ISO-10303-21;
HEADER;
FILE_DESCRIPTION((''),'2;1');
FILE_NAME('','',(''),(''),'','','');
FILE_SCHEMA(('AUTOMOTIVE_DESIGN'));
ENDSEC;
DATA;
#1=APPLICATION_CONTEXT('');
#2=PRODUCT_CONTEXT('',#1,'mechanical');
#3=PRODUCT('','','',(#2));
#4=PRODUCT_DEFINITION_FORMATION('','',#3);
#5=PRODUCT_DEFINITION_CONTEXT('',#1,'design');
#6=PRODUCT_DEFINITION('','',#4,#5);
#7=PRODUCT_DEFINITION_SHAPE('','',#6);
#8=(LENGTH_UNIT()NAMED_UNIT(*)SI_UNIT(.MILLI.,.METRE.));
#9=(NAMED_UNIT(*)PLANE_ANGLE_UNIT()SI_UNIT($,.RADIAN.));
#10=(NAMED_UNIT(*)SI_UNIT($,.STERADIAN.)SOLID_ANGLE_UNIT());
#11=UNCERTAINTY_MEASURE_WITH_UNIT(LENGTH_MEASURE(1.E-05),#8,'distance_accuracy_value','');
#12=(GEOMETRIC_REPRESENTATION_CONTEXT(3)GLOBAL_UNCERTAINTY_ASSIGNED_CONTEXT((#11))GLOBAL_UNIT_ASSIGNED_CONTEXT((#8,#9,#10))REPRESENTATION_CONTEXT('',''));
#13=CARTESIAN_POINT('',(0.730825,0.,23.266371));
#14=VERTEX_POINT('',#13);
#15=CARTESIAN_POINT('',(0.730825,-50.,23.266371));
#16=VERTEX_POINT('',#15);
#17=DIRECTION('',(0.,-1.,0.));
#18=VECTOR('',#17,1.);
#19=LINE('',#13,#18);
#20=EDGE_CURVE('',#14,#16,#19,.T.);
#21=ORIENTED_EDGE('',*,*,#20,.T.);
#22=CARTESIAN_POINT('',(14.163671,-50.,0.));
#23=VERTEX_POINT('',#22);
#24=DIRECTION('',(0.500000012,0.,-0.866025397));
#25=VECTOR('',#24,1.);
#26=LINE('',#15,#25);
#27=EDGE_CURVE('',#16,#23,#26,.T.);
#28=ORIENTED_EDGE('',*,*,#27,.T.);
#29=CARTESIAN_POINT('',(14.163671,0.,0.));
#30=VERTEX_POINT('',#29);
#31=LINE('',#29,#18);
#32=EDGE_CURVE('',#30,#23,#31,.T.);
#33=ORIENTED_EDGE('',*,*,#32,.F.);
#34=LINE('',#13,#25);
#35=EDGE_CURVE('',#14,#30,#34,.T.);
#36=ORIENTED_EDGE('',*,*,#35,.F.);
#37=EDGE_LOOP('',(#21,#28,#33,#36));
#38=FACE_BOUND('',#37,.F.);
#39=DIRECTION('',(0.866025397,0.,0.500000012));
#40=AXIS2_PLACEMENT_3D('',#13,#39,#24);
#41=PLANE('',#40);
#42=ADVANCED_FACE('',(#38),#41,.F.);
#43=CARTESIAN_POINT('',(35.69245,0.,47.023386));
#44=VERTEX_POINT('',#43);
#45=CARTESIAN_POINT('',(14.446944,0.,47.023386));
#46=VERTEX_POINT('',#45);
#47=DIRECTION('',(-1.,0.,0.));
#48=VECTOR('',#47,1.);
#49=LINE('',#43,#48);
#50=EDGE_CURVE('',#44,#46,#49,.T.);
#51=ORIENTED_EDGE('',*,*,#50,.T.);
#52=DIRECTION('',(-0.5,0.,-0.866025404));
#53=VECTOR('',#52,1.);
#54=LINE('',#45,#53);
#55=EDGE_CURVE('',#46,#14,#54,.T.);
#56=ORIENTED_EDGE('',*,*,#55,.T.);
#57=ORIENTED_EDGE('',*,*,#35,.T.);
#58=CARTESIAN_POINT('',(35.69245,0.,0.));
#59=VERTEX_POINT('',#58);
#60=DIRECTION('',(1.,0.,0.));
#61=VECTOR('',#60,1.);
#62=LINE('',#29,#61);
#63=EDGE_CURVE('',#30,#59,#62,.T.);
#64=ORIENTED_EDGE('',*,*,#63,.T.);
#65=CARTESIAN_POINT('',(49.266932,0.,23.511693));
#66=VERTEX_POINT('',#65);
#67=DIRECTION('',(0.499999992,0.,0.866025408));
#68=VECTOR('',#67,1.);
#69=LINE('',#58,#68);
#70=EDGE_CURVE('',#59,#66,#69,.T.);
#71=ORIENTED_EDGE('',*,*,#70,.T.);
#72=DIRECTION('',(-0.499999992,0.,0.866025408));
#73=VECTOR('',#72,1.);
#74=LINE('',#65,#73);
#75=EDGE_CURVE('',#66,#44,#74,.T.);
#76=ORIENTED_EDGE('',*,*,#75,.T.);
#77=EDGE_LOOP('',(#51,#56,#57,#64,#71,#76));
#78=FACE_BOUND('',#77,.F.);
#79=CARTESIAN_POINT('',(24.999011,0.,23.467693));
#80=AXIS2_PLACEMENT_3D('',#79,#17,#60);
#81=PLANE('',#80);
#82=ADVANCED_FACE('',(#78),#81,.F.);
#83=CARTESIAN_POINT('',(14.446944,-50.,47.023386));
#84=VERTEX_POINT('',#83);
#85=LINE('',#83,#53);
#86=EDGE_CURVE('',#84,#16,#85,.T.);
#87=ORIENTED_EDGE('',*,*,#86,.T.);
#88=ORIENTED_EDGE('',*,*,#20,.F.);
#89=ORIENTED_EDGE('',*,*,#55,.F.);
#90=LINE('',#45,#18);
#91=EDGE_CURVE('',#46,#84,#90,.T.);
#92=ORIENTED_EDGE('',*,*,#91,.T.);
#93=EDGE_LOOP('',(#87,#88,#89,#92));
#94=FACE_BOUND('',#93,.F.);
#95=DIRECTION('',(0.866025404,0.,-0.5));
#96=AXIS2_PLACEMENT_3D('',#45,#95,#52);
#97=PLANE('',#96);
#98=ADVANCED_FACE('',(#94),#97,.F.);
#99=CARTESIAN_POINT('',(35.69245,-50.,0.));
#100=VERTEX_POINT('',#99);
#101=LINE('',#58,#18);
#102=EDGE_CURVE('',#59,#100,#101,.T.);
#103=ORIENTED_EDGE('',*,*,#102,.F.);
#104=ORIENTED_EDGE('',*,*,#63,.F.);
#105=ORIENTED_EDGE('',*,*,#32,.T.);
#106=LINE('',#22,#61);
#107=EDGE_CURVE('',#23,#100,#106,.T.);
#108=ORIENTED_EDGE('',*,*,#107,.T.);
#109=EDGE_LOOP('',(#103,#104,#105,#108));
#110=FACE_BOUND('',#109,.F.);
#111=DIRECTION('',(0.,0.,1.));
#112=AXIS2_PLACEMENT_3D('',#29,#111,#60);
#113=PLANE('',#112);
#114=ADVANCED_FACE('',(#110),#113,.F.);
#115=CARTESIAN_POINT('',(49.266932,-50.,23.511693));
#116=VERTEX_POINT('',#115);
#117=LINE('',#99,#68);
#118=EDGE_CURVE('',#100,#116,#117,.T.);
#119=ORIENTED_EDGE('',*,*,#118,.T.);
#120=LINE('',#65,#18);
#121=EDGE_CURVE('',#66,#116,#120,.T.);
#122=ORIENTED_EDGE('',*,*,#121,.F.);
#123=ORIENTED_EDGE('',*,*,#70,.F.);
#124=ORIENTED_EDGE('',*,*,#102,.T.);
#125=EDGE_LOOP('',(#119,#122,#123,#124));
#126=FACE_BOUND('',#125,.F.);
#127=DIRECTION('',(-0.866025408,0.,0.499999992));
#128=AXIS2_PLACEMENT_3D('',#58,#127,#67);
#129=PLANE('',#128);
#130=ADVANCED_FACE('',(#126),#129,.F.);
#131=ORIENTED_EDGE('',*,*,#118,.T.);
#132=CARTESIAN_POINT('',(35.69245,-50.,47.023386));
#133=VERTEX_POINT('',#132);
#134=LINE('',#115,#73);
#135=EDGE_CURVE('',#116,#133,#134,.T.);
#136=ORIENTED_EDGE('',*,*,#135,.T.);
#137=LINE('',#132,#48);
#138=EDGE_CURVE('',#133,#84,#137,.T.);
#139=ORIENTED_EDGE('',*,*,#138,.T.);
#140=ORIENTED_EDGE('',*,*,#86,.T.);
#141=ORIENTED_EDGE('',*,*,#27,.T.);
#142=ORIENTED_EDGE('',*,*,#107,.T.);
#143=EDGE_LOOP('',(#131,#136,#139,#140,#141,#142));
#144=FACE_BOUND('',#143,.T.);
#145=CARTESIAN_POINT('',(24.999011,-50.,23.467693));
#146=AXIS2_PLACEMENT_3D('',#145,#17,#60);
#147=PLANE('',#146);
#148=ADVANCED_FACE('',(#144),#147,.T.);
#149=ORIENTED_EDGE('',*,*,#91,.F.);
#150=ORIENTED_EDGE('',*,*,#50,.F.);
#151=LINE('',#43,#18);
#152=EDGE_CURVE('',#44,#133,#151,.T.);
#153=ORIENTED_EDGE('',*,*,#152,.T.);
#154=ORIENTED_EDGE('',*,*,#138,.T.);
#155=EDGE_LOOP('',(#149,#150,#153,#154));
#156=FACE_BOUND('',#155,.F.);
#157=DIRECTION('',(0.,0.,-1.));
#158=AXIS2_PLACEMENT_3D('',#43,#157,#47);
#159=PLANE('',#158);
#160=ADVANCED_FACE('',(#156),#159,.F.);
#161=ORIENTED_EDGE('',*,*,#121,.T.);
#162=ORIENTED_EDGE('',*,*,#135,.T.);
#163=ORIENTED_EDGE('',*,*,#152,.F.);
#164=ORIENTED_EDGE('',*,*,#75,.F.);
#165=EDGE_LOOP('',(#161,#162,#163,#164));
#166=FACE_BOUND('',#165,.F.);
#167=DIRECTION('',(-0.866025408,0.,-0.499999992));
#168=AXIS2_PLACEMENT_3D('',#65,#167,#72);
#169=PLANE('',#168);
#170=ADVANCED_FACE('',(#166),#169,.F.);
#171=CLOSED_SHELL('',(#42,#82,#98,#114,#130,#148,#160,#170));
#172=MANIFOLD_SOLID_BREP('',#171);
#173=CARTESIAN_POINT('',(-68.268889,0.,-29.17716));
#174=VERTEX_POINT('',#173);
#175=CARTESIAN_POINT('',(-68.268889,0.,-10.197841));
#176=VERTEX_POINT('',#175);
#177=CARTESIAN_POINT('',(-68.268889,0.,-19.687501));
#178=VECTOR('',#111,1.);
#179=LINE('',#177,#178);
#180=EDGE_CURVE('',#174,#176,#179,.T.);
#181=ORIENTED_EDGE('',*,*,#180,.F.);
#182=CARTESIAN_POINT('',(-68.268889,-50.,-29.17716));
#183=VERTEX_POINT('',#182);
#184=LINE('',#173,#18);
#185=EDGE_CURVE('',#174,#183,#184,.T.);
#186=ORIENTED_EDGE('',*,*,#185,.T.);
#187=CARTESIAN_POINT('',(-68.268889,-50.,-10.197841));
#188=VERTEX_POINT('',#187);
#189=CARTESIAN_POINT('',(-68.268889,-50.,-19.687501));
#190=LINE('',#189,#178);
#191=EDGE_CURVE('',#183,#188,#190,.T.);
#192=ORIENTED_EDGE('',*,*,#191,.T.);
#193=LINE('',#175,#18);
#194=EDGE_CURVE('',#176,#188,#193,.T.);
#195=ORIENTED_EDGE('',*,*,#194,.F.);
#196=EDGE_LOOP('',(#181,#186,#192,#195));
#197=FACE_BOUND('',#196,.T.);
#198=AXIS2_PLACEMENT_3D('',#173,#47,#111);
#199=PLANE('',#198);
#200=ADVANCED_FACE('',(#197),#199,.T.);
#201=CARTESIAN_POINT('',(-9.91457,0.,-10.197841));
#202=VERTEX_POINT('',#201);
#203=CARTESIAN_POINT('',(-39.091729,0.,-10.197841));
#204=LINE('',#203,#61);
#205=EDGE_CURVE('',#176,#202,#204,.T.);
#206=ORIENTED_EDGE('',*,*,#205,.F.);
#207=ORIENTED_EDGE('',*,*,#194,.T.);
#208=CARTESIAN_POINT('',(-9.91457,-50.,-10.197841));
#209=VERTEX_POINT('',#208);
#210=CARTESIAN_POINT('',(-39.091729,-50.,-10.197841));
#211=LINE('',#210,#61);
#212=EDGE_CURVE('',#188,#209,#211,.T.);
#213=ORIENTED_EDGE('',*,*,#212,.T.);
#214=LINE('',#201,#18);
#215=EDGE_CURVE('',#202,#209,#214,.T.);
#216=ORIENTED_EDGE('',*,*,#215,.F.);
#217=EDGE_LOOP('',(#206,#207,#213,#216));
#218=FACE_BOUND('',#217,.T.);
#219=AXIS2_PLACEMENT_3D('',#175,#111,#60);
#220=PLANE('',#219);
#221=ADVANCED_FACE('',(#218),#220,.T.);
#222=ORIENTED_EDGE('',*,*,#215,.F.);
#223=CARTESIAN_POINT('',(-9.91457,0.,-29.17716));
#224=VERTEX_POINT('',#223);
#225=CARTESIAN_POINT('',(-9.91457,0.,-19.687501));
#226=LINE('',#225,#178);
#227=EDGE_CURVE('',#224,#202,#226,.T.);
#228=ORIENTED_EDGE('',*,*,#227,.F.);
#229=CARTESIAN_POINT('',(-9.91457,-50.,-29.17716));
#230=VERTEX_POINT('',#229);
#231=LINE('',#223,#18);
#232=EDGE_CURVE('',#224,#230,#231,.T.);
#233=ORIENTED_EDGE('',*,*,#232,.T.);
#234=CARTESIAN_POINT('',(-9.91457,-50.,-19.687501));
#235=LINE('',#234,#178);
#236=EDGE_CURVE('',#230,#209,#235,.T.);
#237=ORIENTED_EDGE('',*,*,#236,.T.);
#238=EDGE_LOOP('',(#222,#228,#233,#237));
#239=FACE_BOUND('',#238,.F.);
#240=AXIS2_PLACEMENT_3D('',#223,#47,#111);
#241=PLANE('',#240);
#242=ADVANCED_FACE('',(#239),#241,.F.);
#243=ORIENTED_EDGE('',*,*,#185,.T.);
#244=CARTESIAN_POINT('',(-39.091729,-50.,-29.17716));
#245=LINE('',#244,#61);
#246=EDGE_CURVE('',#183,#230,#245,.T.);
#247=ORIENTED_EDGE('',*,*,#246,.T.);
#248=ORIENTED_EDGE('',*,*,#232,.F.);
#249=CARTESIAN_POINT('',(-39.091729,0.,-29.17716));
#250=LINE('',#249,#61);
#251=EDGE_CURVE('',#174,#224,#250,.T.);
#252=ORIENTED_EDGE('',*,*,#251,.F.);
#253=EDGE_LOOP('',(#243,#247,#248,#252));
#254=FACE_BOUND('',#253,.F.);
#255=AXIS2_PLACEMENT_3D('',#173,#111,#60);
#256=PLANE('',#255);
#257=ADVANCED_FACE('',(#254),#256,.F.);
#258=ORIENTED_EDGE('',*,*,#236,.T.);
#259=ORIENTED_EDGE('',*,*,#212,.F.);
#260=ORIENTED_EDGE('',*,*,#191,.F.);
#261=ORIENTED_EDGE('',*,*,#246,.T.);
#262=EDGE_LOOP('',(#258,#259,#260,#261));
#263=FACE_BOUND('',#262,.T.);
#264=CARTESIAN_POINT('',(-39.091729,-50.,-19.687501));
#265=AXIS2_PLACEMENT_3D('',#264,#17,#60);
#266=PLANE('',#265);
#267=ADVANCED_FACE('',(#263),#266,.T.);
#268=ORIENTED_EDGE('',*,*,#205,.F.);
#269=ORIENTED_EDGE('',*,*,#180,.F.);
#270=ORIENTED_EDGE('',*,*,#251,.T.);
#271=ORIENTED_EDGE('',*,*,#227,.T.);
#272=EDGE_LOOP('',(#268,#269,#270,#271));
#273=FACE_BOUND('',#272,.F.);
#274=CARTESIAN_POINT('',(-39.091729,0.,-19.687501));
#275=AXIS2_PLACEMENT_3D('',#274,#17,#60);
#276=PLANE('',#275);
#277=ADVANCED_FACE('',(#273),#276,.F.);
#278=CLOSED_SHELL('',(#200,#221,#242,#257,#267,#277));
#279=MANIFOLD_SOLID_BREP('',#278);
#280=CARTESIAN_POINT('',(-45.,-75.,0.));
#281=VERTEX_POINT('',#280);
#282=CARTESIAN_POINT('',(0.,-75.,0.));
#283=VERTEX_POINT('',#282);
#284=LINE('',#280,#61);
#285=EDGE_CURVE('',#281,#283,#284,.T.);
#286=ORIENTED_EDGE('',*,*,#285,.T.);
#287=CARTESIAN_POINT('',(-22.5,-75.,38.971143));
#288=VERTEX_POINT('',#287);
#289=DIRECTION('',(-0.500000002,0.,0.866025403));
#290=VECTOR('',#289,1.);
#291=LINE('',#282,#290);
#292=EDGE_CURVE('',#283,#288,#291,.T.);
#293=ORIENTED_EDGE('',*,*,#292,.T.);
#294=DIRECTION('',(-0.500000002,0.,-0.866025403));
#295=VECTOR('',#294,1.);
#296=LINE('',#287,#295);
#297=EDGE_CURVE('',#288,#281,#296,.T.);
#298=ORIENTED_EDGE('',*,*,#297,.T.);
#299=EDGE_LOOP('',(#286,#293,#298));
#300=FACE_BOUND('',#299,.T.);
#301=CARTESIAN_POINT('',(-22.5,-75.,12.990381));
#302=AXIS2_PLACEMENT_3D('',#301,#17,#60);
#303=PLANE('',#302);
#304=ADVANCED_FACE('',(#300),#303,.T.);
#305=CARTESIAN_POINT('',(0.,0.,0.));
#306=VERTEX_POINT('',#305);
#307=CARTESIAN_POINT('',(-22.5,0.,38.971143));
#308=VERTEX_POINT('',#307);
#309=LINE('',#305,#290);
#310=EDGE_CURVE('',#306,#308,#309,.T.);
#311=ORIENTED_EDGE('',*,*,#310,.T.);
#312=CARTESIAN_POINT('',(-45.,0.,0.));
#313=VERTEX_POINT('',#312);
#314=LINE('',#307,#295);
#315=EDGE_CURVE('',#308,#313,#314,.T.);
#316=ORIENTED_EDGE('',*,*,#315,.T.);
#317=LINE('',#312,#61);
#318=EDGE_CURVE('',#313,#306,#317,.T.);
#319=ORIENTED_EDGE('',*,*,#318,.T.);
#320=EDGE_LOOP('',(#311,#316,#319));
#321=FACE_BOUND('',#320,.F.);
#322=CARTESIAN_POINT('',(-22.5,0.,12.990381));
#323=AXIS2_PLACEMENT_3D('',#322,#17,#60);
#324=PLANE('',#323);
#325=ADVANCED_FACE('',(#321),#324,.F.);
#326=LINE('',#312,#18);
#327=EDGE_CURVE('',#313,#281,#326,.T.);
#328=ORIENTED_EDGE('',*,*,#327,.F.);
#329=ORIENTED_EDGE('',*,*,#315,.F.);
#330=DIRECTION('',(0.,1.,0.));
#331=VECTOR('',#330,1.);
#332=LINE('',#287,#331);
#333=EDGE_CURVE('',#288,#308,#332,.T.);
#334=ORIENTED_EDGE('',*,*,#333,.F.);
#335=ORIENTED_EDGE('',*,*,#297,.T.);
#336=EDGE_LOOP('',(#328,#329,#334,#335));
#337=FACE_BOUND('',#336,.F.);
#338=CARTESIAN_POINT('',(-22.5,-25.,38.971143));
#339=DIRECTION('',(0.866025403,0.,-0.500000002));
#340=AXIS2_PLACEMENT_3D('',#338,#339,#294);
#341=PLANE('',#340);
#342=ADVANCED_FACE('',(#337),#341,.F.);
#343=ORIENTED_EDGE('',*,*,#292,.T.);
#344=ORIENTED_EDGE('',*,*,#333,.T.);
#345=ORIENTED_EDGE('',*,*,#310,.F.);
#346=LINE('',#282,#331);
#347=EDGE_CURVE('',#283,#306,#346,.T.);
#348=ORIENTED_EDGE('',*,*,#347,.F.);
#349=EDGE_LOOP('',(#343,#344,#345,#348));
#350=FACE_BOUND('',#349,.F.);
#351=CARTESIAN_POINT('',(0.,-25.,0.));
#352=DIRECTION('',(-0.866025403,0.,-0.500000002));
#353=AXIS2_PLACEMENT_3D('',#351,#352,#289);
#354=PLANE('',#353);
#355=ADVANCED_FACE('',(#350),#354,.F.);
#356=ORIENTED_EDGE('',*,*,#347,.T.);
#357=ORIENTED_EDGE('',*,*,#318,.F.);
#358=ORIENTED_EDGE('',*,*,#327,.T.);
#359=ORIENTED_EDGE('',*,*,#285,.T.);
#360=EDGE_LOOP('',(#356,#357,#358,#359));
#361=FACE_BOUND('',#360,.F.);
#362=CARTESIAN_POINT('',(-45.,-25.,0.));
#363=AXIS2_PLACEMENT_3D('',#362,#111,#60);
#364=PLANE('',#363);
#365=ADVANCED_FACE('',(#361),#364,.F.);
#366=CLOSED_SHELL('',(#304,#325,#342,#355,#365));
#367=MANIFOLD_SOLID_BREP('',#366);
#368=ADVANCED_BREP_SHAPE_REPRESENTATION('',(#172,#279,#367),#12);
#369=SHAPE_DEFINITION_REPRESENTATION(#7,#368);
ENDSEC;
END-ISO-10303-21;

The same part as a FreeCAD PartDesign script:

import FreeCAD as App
import Part
import Sketcher
Q = App.Units.Quantity


def add_polygon(sketch, points):
    """Adds a closed chain of lines whose ends are joined by coincident constraints."""
    first, n = sketch.GeometryCount, len(points)
    for a, b in zip(points, points[1:] + points[:1]):
        sketch.addGeometry(Part.LineSegment(App.Vector(*a, 0), App.Vector(*b, 0)), False)
    for i in range(n):
        sketch.addConstraint(Sketcher.Constraint("Coincident", first + i, 2, first + (i + 1) % n, 1))

doc = App.newDocument("Part")
body = doc.addObject("PartDesign::Body", "Body")

# Sketch on XZ plane
sketch1 = doc.addObject("Sketcher::SketchObject", "Sketch")
body.addObject(sketch1)
sketch1.AttachmentSupport = (doc.XZ_Plane, [""])
sketch1.MapMode = "FlatFace"
add_polygon(sketch1, [(-45, 0), (0, 0), (-22, 39)])  # lines 0-2
sketch1.addConstraint([
    Sketcher.Constraint("Horizontal", 0),
    Sketcher.Constraint("Coincident", 0, 2, -1, 1),
    Sketcher.Constraint("Equal", 1, 2),
    Sketcher.Constraint("DistanceX", 0, 1, 0, 2, 45.0),
    Sketcher.Constraint("Angle", 1, Q("120 deg")),
])
pad1 = doc.addObject("PartDesign::Pad", "Pad")
body.addObject(pad1)
pad1.Profile = sketch1
pad1.Length = 25

# Sketch on XZ plane
sketch2 = doc.addObject("Sketcher::SketchObject", "Sketch001")
body.addObject(sketch2)
sketch2.AttachmentSupport = (doc.XZ_Plane, [""])
sketch2.MapMode = "FlatFace"
sketch2.AttachmentOffset = App.Placement(App.Vector(0, 0, 25), App.Rotation())
add_polygon(sketch2, [(-22, 39), (-45, 0), (0, 0)])  # lines 0-2
sketch2.addConstraint([
    Sketcher.Constraint("Horizontal", 1),
    Sketcher.Constraint("Coincident", 1, 2, -1, 1),
    Sketcher.Constraint("Equal", 0, 2),
    Sketcher.Constraint("DistanceX", 1, 1, 1, 2, 45.0),
    Sketcher.Constraint("Angle", 0, Q("-120 deg")),
])
pad2 = doc.addObject("PartDesign::Pad", "Pad001")
body.addObject(pad2)
pad2.Profile = sketch2
pad2.Length = 50
body2 = doc.addObject("PartDesign::Body", "Body001")

# Sketch on XZ plane
sketch3 = doc.addObject("Sketcher::SketchObject", "Sketch002")
body2.addObject(sketch3)
sketch3.AttachmentSupport = (doc.getObject("XZ_Plane001"), [""])
sketch3.MapMode = "FlatFace"
add_polygon(sketch3, [(1, 23), (14, 0), (36, 0), (49, 24), (36, 47), (14, 47)])  # lines 0-5
sketch3.addConstraint([
    Sketcher.Constraint("Horizontal", 1),
    Sketcher.Constraint("Horizontal", 4),
    Sketcher.Constraint("PointOnObject", 0, 2, -1),
    Sketcher.Constraint("Parallel", 0, 3),
    Sketcher.Constraint("Parallel", 2, 5),
    Sketcher.Constraint("Vertical", 1, 2, 3, 2),
    Sketcher.Constraint("Equal", 2, 3),
    Sketcher.Constraint("Angle", 0, Q("-59.999999 deg")),
    Sketcher.Constraint("DistanceX", 1, 1, 1, 2, 21.528779),
    Sketcher.Constraint("Distance", 0, 26.865691),
    Sketcher.Constraint("Distance", 5, 27.432238),
    Sketcher.Constraint("DistanceX", -1, 1, 0, 2, 14.163671),
])
pad3 = doc.addObject("PartDesign::Pad", "Pad002")
body2.addObject(pad3)
pad3.Profile = sketch3
pad3.Length = 50
body3 = doc.addObject("PartDesign::Body", "Body002")

# Sketch on XZ plane
sketch4 = doc.addObject("Sketcher::SketchObject", "Sketch003")
body3.addObject(sketch4)
sketch4.AttachmentSupport = (doc.getObject("XZ_Plane002"), [""])
sketch4.MapMode = "FlatFace"
add_polygon(sketch4, [(-68, -10), (-68, -29), (-10, -29), (-10, -10)])  # lines 0-3
sketch4.addConstraint([
    Sketcher.Constraint("Vertical", 0),
    Sketcher.Constraint("Horizontal", 1),
    Sketcher.Constraint("Vertical", 2),
    Sketcher.Constraint("Horizontal", 3),
    Sketcher.Constraint("DistanceX", 1, 1, 1, 2, 58.354319),
    Sketcher.Constraint("DistanceY", 0, 2, 0, 1, 18.979319),
    Sketcher.Constraint("DistanceX", 0, 2, -1, 1, 68.268889),
    Sketcher.Constraint("DistanceY", 0, 2, -1, 1, 29.17716),
])
pad4 = doc.addObject("PartDesign::Pad", "Pad003")
body3.addObject(pad4)
pad4.Profile = sketch4
pad4.Length = 50

doc.recompute()
